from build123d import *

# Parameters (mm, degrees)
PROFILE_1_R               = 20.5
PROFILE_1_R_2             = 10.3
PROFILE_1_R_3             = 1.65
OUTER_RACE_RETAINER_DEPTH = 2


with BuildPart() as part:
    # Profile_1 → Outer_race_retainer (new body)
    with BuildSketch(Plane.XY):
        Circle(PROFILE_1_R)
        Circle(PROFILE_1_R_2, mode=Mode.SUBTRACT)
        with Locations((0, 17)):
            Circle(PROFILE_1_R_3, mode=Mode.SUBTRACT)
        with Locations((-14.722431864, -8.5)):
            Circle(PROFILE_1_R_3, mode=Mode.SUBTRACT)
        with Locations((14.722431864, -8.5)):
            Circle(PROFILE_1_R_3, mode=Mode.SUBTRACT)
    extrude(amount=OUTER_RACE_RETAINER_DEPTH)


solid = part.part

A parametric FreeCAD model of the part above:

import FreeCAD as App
import Part
import Sketcher

V = App.Vector

doc = App.newDocument("Part")
body = doc.addObject("PartDesign::Body", "Body")

# Sketch on XY plane
sketch1 = body.newObject("Sketcher::SketchObject", "Sketch")
sketch1.AttachmentSupport = (doc.getObject("XY_Plane"), [""])
sketch1.MapMode = "FlatFace"
sketch1.addGeometry([
    Part.Circle(V(0, 0, 0), V(0, 0, 1), 20.5),  # 0
    Part.Circle(V(-14.722432, -8.5, 0), V(0, 0, 1), 1.65),  # 1
    Part.Circle(V(14.722432, -8.5, 0), V(0, 0, 1), 1.65),  # 2
    Part.Circle(V(0, 0, 0), V(0, 0, 1), 10.3),  # 3
    Part.Circle(V(0, 17, 0), V(0, 0, 1), 1.65),  # 4
], False)
sketch1.addConstraint([
    Sketcher.Constraint("Coincident", 0, 3, -1, 1),
    Sketcher.Constraint("Coincident", 3, 3, -1, 1),
    Sketcher.Constraint("Equal", 1, 2),
    Sketcher.Constraint("Equal", 2, 4),
    Sketcher.Constraint("Symmetric", 1, 3, 2, 3, -2),
    Sketcher.Constraint("PointOnObject", 4, 3, -2),
    Sketcher.Constraint("Diameter", 0, 41.0),
    Sketcher.Constraint("Diameter", 1, 3.3),
    Sketcher.Constraint("Diameter", 3, 20.6),
    Sketcher.Constraint("DistanceY", -1, 1, 4, 3, 17.0),
    Sketcher.Constraint("DistanceY", 1, 3, -1, 1, 8.5),
    Sketcher.Constraint("DistanceX", 1, 3, -1, 1, 14.722432),
])
pad1 = body.newObject("PartDesign::Pad", "Pad")
pad1.Profile = sketch1
pad1.Length = 2

doc.recompute()
